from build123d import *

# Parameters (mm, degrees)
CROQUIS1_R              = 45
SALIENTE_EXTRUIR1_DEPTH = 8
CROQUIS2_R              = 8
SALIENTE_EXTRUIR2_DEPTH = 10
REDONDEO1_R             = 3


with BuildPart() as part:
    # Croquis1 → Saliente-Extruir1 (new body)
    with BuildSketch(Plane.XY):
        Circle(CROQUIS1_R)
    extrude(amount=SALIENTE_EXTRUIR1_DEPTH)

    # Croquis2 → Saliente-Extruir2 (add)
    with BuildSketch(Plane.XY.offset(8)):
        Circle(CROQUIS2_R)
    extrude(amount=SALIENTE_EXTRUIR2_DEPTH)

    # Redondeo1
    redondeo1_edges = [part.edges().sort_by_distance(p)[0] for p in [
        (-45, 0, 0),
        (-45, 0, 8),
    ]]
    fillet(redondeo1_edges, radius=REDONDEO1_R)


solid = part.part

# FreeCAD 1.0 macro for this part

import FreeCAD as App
import Part
import Sketcher
Q = App.Units.Quantity


def edges_at(feature, points):
    """Names of the edges that pass closest to the given points."""
    edges = feature.Shape.Edges
    near = lambda p: min(range(len(edges)), key=lambda i: edges[i].distToShape(Part.Vertex(*p))[0])
    return sorted({f"Edge{near(p) + 1}" for p in points})

doc = App.newDocument("Part")
body = doc.addObject("PartDesign::Body", "Body")

sketch1 = body.newObject("Sketcher::SketchObject", "Sketch")
sketch1.AttachmentSupport = (doc.getObject("XY_Plane"), [""])
sketch1.MapMode = "FlatFace"
sketch1.addGeometry(Part.Circle(App.Vector(0, 0, 0), App.Vector(0, 0, 1), 45), False)
sketch1.addConstraint([
    Sketcher.Constraint("Coincident", 0, 3, -1, 1),
    Sketcher.Constraint("Diameter", 0, Q("90 mm")),
])
pad1 = body.newObject("PartDesign::Pad", "Pad")
pad1.Profile = sketch1
pad1.Length = 8

sketch2 = body.newObject("Sketcher::SketchObject", "Sketch001")
sketch2.AttachmentSupport = (doc.getObject("XY_Plane"), [""])
sketch2.MapMode = "FlatFace"
sketch2.AttachmentOffset = App.Placement(App.Vector(0, 0, 8), App.Rotation())
sketch2.addGeometry(Part.Circle(App.Vector(0, 0, 0), App.Vector(0, 0, 1), 8), False)
sketch2.addConstraint([
    Sketcher.Constraint("Coincident", 0, 3, -1, 1),
    Sketcher.Constraint("Diameter", 0, Q("16 mm")),
])
pad2 = body.newObject("PartDesign::Pad", "Pad001")
pad2.Profile = sketch2
pad2.Length = 10
doc.recompute()

fillet = body.newObject("PartDesign::Fillet", "Fillet")
fillet.Base = (pad2, edges_at(pad2, [(-45, 0, 0), (-45, 0, 8)]))
fillet.Radius = 3

doc.recompute()
